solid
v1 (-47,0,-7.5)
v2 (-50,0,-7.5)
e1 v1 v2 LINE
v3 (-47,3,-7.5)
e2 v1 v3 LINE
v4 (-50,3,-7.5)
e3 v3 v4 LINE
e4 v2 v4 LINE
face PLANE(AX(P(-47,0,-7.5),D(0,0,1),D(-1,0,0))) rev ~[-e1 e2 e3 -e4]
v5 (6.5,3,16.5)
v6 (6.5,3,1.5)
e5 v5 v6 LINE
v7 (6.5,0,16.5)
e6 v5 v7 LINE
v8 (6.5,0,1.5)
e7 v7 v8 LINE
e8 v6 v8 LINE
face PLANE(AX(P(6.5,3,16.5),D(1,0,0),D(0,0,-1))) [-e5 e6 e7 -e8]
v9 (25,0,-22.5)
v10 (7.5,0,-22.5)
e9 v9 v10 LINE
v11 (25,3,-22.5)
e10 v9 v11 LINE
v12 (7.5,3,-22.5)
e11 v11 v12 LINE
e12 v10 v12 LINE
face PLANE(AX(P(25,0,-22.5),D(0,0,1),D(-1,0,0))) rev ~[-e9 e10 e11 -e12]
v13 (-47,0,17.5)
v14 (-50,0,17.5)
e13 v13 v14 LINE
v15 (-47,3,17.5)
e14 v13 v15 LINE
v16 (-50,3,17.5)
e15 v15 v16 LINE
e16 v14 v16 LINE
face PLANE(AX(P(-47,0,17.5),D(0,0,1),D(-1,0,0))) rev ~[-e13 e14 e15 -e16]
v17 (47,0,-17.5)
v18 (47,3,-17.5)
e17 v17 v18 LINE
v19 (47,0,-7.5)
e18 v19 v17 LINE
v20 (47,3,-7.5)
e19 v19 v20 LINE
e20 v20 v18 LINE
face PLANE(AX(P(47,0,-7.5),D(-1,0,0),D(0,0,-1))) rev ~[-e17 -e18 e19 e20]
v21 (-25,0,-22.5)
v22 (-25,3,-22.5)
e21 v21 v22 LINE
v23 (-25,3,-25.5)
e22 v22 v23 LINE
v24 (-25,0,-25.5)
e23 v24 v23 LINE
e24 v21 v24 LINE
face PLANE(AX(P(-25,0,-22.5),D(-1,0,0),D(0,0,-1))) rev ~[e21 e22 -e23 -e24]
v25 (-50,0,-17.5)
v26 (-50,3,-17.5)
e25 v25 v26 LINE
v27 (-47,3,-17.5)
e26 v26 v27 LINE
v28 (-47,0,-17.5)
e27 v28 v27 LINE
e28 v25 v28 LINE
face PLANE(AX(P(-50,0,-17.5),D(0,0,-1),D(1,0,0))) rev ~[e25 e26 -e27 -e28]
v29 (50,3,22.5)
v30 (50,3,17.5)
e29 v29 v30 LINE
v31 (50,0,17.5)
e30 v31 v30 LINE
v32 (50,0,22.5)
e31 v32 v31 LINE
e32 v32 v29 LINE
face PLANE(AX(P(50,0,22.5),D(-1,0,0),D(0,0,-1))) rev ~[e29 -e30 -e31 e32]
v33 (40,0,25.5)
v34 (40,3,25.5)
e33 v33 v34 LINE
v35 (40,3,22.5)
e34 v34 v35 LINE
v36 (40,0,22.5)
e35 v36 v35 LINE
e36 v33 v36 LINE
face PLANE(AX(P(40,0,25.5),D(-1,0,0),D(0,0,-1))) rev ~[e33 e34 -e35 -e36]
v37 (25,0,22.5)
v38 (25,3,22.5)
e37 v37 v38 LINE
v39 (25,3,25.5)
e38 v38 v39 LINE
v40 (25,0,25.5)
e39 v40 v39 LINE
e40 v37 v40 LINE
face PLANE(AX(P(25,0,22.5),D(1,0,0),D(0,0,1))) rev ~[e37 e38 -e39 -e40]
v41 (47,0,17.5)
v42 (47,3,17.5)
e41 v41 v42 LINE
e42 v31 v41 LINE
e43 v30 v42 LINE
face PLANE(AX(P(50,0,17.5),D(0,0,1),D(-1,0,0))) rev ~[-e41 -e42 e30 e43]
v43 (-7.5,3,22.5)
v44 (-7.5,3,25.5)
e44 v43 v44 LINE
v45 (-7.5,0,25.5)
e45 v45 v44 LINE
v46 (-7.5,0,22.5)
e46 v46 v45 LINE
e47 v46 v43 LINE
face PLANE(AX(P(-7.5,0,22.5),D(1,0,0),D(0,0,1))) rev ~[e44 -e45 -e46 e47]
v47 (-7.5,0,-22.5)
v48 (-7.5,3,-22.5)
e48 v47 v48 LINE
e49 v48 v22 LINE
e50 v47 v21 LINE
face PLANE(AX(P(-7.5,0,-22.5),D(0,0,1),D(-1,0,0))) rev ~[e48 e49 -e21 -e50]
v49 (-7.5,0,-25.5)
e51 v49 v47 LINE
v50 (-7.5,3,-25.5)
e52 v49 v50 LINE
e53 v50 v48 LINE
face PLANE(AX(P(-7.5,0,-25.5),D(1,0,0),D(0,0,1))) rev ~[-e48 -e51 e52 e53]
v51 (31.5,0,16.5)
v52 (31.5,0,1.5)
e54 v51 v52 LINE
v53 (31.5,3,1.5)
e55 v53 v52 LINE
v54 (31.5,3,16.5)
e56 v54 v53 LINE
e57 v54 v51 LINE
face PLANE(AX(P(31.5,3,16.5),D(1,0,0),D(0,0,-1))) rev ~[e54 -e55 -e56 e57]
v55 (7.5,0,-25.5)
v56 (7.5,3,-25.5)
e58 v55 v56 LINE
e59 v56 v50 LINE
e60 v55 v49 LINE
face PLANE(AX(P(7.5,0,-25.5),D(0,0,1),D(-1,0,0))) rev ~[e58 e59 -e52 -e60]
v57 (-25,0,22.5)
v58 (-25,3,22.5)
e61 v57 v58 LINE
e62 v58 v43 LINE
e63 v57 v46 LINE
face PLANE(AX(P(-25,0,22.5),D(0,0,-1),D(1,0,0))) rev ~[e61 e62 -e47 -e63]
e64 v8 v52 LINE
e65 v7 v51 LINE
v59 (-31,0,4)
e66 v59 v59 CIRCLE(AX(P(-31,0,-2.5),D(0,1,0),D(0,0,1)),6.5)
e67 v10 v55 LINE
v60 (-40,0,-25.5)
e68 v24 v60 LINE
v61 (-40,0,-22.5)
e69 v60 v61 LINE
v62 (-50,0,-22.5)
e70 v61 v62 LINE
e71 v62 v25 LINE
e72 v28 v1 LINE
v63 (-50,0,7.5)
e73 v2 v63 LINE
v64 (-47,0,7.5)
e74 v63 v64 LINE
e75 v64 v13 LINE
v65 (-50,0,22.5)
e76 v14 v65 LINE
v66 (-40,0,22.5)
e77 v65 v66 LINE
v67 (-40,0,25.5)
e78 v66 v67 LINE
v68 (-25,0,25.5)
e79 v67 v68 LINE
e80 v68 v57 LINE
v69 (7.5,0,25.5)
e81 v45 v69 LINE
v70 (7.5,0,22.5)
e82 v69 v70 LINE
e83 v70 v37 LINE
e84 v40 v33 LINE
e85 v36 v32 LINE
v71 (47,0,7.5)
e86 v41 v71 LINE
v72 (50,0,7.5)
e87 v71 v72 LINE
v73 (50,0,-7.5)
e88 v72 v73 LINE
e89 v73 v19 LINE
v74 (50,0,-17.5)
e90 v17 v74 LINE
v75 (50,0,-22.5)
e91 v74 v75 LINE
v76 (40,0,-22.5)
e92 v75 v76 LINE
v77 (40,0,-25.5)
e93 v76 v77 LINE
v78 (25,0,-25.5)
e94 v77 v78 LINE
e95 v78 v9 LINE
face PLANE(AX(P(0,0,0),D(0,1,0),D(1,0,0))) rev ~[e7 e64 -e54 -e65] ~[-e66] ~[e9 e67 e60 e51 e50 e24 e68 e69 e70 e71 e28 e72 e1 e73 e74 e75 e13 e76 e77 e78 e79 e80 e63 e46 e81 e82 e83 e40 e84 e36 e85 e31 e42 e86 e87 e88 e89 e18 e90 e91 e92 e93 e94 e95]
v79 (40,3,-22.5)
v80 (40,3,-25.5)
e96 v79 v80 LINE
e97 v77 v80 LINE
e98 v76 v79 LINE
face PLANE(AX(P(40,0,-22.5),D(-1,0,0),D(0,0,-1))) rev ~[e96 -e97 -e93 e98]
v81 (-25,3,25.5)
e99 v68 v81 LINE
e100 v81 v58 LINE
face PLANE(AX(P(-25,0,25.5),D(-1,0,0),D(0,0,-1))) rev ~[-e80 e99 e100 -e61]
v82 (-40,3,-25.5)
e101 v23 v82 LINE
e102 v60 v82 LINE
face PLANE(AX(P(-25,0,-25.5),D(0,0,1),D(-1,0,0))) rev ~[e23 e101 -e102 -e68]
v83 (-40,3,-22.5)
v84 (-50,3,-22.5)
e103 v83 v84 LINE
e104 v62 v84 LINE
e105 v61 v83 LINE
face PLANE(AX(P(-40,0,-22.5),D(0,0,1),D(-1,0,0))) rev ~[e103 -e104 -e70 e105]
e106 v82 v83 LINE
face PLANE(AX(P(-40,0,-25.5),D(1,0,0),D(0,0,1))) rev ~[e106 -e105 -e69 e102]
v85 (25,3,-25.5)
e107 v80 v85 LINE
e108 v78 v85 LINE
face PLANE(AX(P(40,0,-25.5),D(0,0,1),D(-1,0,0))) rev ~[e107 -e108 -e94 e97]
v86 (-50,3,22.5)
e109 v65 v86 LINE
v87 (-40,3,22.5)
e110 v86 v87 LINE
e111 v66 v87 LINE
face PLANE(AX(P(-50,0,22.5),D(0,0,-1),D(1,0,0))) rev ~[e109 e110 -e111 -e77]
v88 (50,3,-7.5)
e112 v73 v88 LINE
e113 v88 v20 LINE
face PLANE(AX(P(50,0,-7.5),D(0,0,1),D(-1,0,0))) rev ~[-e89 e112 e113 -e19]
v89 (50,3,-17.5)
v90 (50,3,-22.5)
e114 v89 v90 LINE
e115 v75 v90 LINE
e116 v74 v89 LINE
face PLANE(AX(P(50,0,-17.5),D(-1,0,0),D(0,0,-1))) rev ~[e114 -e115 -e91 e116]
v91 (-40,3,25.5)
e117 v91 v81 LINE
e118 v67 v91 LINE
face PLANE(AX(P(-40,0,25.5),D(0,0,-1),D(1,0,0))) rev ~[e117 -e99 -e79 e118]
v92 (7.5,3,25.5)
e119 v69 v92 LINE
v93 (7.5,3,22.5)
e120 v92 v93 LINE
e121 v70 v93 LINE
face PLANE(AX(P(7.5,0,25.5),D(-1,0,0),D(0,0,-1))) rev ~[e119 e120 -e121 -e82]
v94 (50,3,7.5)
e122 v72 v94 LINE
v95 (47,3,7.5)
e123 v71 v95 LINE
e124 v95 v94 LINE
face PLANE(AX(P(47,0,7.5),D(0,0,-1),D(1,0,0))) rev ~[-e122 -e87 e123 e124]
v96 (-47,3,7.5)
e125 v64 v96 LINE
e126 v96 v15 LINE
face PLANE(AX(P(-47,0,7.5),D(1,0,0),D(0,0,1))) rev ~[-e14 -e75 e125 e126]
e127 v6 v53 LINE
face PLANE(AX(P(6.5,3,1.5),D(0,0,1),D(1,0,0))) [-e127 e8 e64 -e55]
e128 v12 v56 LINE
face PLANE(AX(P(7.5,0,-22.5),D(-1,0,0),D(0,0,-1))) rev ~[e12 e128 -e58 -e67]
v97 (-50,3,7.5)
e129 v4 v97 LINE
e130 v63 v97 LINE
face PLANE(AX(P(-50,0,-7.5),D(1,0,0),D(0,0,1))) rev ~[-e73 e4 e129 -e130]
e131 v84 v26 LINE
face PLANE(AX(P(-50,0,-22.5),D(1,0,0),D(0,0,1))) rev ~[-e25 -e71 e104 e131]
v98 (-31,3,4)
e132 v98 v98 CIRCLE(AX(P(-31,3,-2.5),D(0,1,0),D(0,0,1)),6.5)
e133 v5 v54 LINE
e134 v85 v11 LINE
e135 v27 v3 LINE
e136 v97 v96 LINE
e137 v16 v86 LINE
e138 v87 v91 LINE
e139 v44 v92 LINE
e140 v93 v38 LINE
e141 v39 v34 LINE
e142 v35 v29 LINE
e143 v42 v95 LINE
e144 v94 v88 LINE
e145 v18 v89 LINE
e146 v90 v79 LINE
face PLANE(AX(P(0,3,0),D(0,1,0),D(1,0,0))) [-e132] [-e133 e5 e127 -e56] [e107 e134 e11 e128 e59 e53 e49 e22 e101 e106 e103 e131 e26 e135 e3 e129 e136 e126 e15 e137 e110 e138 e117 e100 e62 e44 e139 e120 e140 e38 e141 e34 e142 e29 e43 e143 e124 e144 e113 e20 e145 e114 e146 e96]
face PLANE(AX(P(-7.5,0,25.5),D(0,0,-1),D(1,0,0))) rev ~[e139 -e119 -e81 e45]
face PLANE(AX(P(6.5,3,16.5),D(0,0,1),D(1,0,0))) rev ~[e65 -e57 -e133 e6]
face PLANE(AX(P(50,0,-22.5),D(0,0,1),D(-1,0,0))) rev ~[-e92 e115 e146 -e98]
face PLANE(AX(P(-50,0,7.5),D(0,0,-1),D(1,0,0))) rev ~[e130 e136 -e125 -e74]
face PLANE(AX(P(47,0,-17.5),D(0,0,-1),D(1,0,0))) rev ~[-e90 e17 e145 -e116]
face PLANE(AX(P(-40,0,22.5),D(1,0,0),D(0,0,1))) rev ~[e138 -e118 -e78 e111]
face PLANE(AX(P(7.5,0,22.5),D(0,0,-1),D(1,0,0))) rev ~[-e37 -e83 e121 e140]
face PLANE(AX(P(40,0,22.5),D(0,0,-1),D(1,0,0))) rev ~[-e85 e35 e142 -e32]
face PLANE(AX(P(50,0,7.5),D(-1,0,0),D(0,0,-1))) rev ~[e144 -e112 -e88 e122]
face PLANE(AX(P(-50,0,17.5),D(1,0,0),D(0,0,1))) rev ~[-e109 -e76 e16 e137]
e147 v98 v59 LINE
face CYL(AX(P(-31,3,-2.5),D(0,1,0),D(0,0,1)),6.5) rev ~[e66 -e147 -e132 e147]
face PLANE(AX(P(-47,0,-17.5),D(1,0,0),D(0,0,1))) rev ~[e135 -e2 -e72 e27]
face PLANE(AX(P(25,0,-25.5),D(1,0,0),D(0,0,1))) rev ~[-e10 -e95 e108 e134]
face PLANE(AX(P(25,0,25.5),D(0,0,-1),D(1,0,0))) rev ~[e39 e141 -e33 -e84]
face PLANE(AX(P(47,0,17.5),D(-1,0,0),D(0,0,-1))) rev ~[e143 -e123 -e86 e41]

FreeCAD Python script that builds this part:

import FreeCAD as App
import Part
import Sketcher
Q = App.Units.Quantity

doc = App.newDocument("Part")
body = doc.addObject("PartDesign::Body", "Body")

sketch1 = body.newObject("Sketcher::SketchObject", "Sketch")
sketch1.AttachmentSupport = (doc.getObject("XZ_Plane"), [""])
sketch1.MapMode = "FlatFace"
sketch1.addGeometry(Part.LineSegment(App.Vector(-50, 22.5, 0), App.Vector(-40, 22.5, 0)), False)
sketch1.addGeometry(Part.LineSegment(App.Vector(-40, 22.5, 0), App.Vector(-40, 25.5, 0)), False)
sketch1.addGeometry(Part.LineSegment(App.Vector(-40, 25.5, 0), App.Vector(-25, 25.5, 0)), False)
sketch1.addGeometry(Part.LineSegment(App.Vector(-25, 25.5, 0), App.Vector(-25, 22.5, 0)), False)
sketch1.addGeometry(Part.LineSegment(App.Vector(-25, 22.5, 0), App.Vector(-7.5, 22.5, 0)), False)
sketch1.addGeometry(Part.LineSegment(App.Vector(-7.5, 22.5, 0), App.Vector(-7.5, 25.5, 0)), False)
sketch1.addGeometry(Part.LineSegment(App.Vector(-7.5, 25.5, 0), App.Vector(7.5, 25.5, 0)), False)
sketch1.addGeometry(Part.LineSegment(App.Vector(7.5, 25.5, 0), App.Vector(7.5, 22.5, 0)), False)
sketch1.addGeometry(Part.LineSegment(App.Vector(7.5, 22.5, 0), App.Vector(25, 22.5, 0)), False)
sketch1.addGeometry(Part.LineSegment(App.Vector(25, 22.5, 0), App.Vector(25, 25.5, 0)), False)
sketch1.addGeometry(Part.LineSegment(App.Vector(25, 25.5, 0), App.Vector(40, 25.5, 0)), False)
sketch1.addGeometry(Part.LineSegment(App.Vector(40, 25.5, 0), App.Vector(40, 22.5, 0)), False)
sketch1.addGeometry(Part.LineSegment(App.Vector(40, 22.5, 0), App.Vector(50, 22.5, 0)), False)
sketch1.addGeometry(Part.LineSegment(App.Vector(50, 22.5, 0), App.Vector(50, 17.5, 0)), False)
sketch1.addGeometry(Part.LineSegment(App.Vector(50, 17.5, 0), App.Vector(47, 17.5, 0)), False)
sketch1.addGeometry(Part.LineSegment(App.Vector(47, 17.5, 0), App.Vector(47, 7.5, 0)), False)
sketch1.addGeometry(Part.LineSegment(App.Vector(47, 7.5, 0), App.Vector(50, 7.5, 0)), False)
sketch1.addGeometry(Part.LineSegment(App.Vector(50, 7.5, 0), App.Vector(50, -7.5, 0)), False)
sketch1.addGeometry(Part.LineSegment(App.Vector(50, -7.5, 0), App.Vector(47, -7.5, 0)), False)
sketch1.addGeometry(Part.LineSegment(App.Vector(47, -7.5, 0), App.Vector(47, -17.5, 0)), False)
sketch1.addGeometry(Part.LineSegment(App.Vector(47, -17.5, 0), App.Vector(50, -17.5, 0)), False)
sketch1.addGeometry(Part.LineSegment(App.Vector(50, -17.5, 0), App.Vector(50, -22.5, 0)), False)
sketch1.addGeometry(Part.LineSegment(App.Vector(50, -22.5, 0), App.Vector(40, -22.5, 0)), False)
sketch1.addGeometry(Part.LineSegment(App.Vector(40, -22.5, 0), App.Vector(40, -25.5, 0)), False)
sketch1.addGeometry(Part.LineSegment(App.Vector(40, -25.5, 0), App.Vector(25, -25.5, 0)), False)
sketch1.addGeometry(Part.LineSegment(App.Vector(25, -25.5, 0), App.Vector(25, -22.5, 0)), False)
sketch1.addGeometry(Part.LineSegment(App.Vector(25, -22.5, 0), App.Vector(7.5, -22.5, 0)), False)
sketch1.addGeometry(Part.LineSegment(App.Vector(7.5, -22.5, 0), App.Vector(7.5, -25.5, 0)), False)
sketch1.addGeometry(Part.LineSegment(App.Vector(7.5, -25.5, 0), App.Vector(-7.5, -25.5, 0)), False)
sketch1.addGeometry(Part.LineSegment(App.Vector(-7.5, -25.5, 0), App.Vector(-7.5, -22.5, 0)), False)
sketch1.addGeometry(Part.LineSegment(App.Vector(-7.5, -22.5, 0), App.Vector(-25, -22.5, 0)), False)
sketch1.addGeometry(Part.LineSegment(App.Vector(-25, -22.5, 0), App.Vector(-25, -25.5, 0)), False)
sketch1.addGeometry(Part.LineSegment(App.Vector(-25, -25.5, 0), App.Vector(-40, -25.5, 0)), False)
sketch1.addGeometry(Part.LineSegment(App.Vector(-40, -25.5, 0), App.Vector(-40, -22.5, 0)), False)
sketch1.addGeometry(Part.LineSegment(App.Vector(-40, -22.5, 0), App.Vector(-50, -22.5, 0)), False)
sketch1.addGeometry(Part.LineSegment(App.Vector(-50, -22.5, 0), App.Vector(-50, -17.5, 0)), False)
sketch1.addGeometry(Part.LineSegment(App.Vector(-50, -17.5, 0), App.Vector(-47, -17.5, 0)), False)
sketch1.addGeometry(Part.LineSegment(App.Vector(-47, -17.5, 0), App.Vector(-47, -7.5, 0)), False)
sketch1.addGeometry(Part.LineSegment(App.Vector(-47, -7.5, 0), App.Vector(-50, -7.5, 0)), False)
sketch1.addGeometry(Part.LineSegment(App.Vector(-50, -7.5, 0), App.Vector(-50, 7.5, 0)), False)
sketch1.addGeometry(Part.LineSegment(App.Vector(-50, 7.5, 0), App.Vector(-47, 7.5, 0)), False)
sketch1.addGeometry(Part.LineSegment(App.Vector(-47, 7.5, 0), App.Vector(-47, 17.5, 0)), False)
sketch1.addGeometry(Part.LineSegment(App.Vector(-47, 17.5, 0), App.Vector(-50, 17.5, 0)), False)
sketch1.addGeometry(Part.LineSegment(App.Vector(-50, 17.5, 0), App.Vector(-50, 22.5, 0)), False)
sketch1.addConstraint(Sketcher.Constraint("Coincident", 0, 2, 1, 1))
sketch1.addConstraint(Sketcher.Constraint("Coincident", 1, 2, 2, 1))
sketch1.addConstraint(Sketcher.Constraint("Coincident", 2, 2, 3, 1))
sketch1.addConstraint(Sketcher.Constraint("Coincident", 3, 2, 4, 1))
sketch1.addConstraint(Sketcher.Constraint("Coincident", 4, 2, 5, 1))
sketch1.addConstraint(Sketcher.Constraint("Coincident", 5, 2, 6, 1))
sketch1.addConstraint(Sketcher.Constraint("Coincident", 6, 2, 7, 1))
sketch1.addConstraint(Sketcher.Constraint("Coincident", 7, 2, 8, 1))
sketch1.addConstraint(Sketcher.Constraint("Coincident", 8, 2, 9, 1))
sketch1.addConstraint(Sketcher.Constraint("Coincident", 9, 2, 10, 1))
sketch1.addConstraint(Sketcher.Constraint("Coincident", 10, 2, 11, 1))
sketch1.addConstraint(Sketcher.Constraint("Coincident", 11, 2, 12, 1))
sketch1.addConstraint(Sketcher.Constraint("Coincident", 12, 2, 13, 1))
sketch1.addConstraint(Sketcher.Constraint("Coincident", 13, 2, 14, 1))
sketch1.addConstraint(Sketcher.Constraint("Coincident", 14, 2, 15, 1))
sketch1.addConstraint(Sketcher.Constraint("Coincident", 15, 2, 16, 1))
sketch1.addConstraint(Sketcher.Constraint("Coincident", 16, 2, 17, 1))
sketch1.addConstraint(Sketcher.Constraint("Coincident", 17, 2, 18, 1))
sketch1.addConstraint(Sketcher.Constraint("Coincident", 18, 2, 19, 1))
sketch1.addConstraint(Sketcher.Constraint("Coincident", 19, 2, 20, 1))
sketch1.addConstraint(Sketcher.Constraint("Coincident", 20, 2, 21, 1))
sketch1.addConstraint(Sketcher.Constraint("Coincident", 21, 2, 22, 1))
sketch1.addConstraint(Sketcher.Constraint("Coincident", 22, 2, 23, 1))
sketch1.addConstraint(Sketcher.Constraint("Coincident", 23, 2, 24, 1))
sketch1.addConstraint(Sketcher.Constraint("Coincident", 24, 2, 25, 1))
sketch1.addConstraint(Sketcher.Constraint("Coincident", 25, 2, 26, 1))
sketch1.addConstraint(Sketcher.Constraint("Coincident", 26, 2, 27, 1))
sketch1.addConstraint(Sketcher.Constraint("Coincident", 27, 2, 28, 1))
sketch1.addConstraint(Sketcher.Constraint("Coincident", 28, 2, 29, 1))
sketch1.addConstraint(Sketcher.Constraint("Coincident", 29, 2, 30, 1))
sketch1.addConstraint(Sketcher.Constraint("Coincident", 30, 2, 31, 1))
sketch1.addConstraint(Sketcher.Constraint("Coincident", 31, 2, 32, 1))
sketch1.addConstraint(Sketcher.Constraint("Coincident", 32, 2, 33, 1))
sketch1.addConstraint(Sketcher.Constraint("Coincident", 33, 2, 34, 1))
sketch1.addConstraint(Sketcher.Constraint("Coincident", 34, 2, 35, 1))
sketch1.addConstraint(Sketcher.Constraint("Coincident", 35, 2, 36, 1))
sketch1.addConstraint(Sketcher.Constraint("Coincident", 36, 2, 37, 1))
sketch1.addConstraint(Sketcher.Constraint("Coincident", 37, 2, 38, 1))
sketch1.addConstraint(Sketcher.Constraint("Coincident", 38, 2, 39, 1))
sketch1.addConstraint(Sketcher.Constraint("Coincident", 39, 2, 40, 1))
sketch1.addConstraint(Sketcher.Constraint("Coincident", 40, 2, 41, 1))
sketch1.addConstraint(Sketcher.Constraint("Coincident", 41, 2, 42, 1))
sketch1.addConstraint(Sketcher.Constraint("Coincident", 42, 2, 43, 1))
sketch1.addConstraint(Sketcher.Constraint("Coincident", 43, 2, 0, 1))
sketch1.addConstraint(Sketcher.Constraint("Horizontal", 0))
sketch1.addConstraint(Sketcher.Constraint("Vertical", 1))
sketch1.addConstraint(Sketcher.Constraint("Horizontal", 2))
sketch1.addConstraint(Sketcher.Constraint("Vertical", 3))
sketch1.addConstraint(Sketcher.Constraint("Horizontal", 4))
sketch1.addConstraint(Sketcher.Constraint("Vertical", 5))
sketch1.addConstraint(Sketcher.Constraint("Horizontal", 6))
sketch1.addConstraint(Sketcher.Constraint("Vertical", 7))
sketch1.addConstraint(Sketcher.Constraint("Horizontal", 8))
sketch1.addConstraint(Sketcher.Constraint("Vertical", 9))
sketch1.addConstraint(Sketcher.Constraint("Horizontal", 10))
sketch1.addConstraint(Sketcher.Constraint("Vertical", 11))
sketch1.addConstraint(Sketcher.Constraint("Horizontal", 12))
sketch1.addConstraint(Sketcher.Constraint("Vertical", 13))
sketch1.addConstraint(Sketcher.Constraint("Horizontal", 14))
sketch1.addConstraint(Sketcher.Constraint("Vertical", 15))
sketch1.addConstraint(Sketcher.Constraint("Horizontal", 16))
sketch1.addConstraint(Sketcher.Constraint("Vertical", 17))
sketch1.addConstraint(Sketcher.Constraint("Horizontal", 18))
sketch1.addConstraint(Sketcher.Constraint("Vertical", 19))
sketch1.addConstraint(Sketcher.Constraint("Horizontal", 20))
sketch1.addConstraint(Sketcher.Constraint("Vertical", 21))
sketch1.addConstraint(Sketcher.Constraint("Horizontal", 22))
sketch1.addConstraint(Sketcher.Constraint("Vertical", 23))
sketch1.addConstraint(Sketcher.Constraint("Horizontal", 24))
sketch1.addConstraint(Sketcher.Constraint("Vertical", 25))
sketch1.addConstraint(Sketcher.Constraint("Horizontal", 26))
sketch1.addConstraint(Sketcher.Constraint("Vertical", 27))
sketch1.addConstraint(Sketcher.Constraint("Horizontal", 28))
sketch1.addConstraint(Sketcher.Constraint("Vertical", 29))
sketch1.addConstraint(Sketcher.Constraint("Horizontal", 30))
sketch1.addConstraint(Sketcher.Constraint("Vertical", 31))
sketch1.addConstraint(Sketcher.Constraint("Horizontal", 32))
sketch1.addConstraint(Sketcher.Constraint("Vertical", 33))
sketch1.addConstraint(Sketcher.Constraint("Horizontal", 34))
sketch1.addConstraint(Sketcher.Constraint("Vertical", 35))
sketch1.addConstraint(Sketcher.Constraint("Horizontal", 36))
sketch1.addConstraint(Sketcher.Constraint("Vertical", 37))
sketch1.addConstraint(Sketcher.Constraint("Horizontal", 38))
sketch1.addConstraint(Sketcher.Constraint("Vertical", 39))
sketch1.addConstraint(Sketcher.Constraint("Horizontal", 40))
sketch1.addConstraint(Sketcher.Constraint("Vertical", 41))
sketch1.addConstraint(Sketcher.Constraint("Horizontal", 42))
sketch1.addConstraint(Sketcher.Constraint("Vertical", 43))
sketch1.addConstraint(Sketcher.Constraint("Symmetric", 0, 2, 22, 2, -1, 1))
sketch1.addConstraint(Sketcher.Constraint("Symmetric", 2, 2, 24, 2, -1, 1))
sketch1.addConstraint(Sketcher.Constraint("Symmetric", 4, 2, 26, 2, -1, 1))
sketch1.addConstraint(Sketcher.Constraint("Symmetric", 6, 2, 28, 2, -1, 1))
sketch1.addConstraint(Sketcher.Constraint("Symmetric", 8, 2, 30, 2, -1, 1))
sketch1.addConstraint(Sketcher.Constraint("Symmetric", 10, 2, 32, 2, -1, 1))
sketch1.addConstraint(Sketcher.Constraint("Symmetric", 12, 2, 34, 2, -1, 1))
sketch1.addConstraint(Sketcher.Constraint("Symmetric", 14, 2, 36, 2, -1, 1))
sketch1.addConstraint(Sketcher.Constraint("Symmetric", 16, 2, 38, 2, -1, 1))
sketch1.addConstraint(Sketcher.Constraint("Symmetric", 18, 2, 40, 2, -1, 1))
sketch1.addConstraint(Sketcher.Constraint("Symmetric", 20, 2, 42, 2, -1, 1))
sketch1.addConstraint(Sketcher.Constraint("Symmetric", 4, 2, 7, 2, -2))
sketch1.addConstraint(Sketcher.Constraint("Symmetric", 2, 2, 9, 2, -2))
sketch1.addConstraint(Sketcher.Constraint("Symmetric", 0, 2, 11, 2, -2))
sketch1.addConstraint(Sketcher.Constraint("Symmetric", 20, 2, 35, 2, -2))
sketch1.addConstraint(Sketcher.Constraint("Symmetric", 18, 2, 37, 2, -2))
sketch1.addConstraint(Sketcher.Constraint("Horizontal", 0, 2, 3, 2))
sketch1.addConstraint(Sketcher.Constraint("Horizontal", 2, 2, 5, 2))
sketch1.addConstraint(Sketcher.Constraint("Vertical", 13, 2, 16, 2))
sketch1.addConstraint(Sketcher.Constraint("Equal", 2, 6))
sketch1.addConstraint(Sketcher.Constraint("Equal", 42, 1))
sketch1.addConstraint(Sketcher.Constraint("Equal", 34, 15))
sketch1.addConstraint(Sketcher.Constraint("Equal", 32, 17))
sketch1.addConstraint(Sketcher.Constraint("DistanceX", 0, 1, 0, 2, Q("10 mm")))
sketch1.addConstraint(Sketcher.Constraint("DistanceX", 2, 1, 2, 2, Q("15 mm")))
sketch1.addConstraint(Sketcher.Constraint("DistanceX", 14, 2, 14, 1, Q("3 mm")))
sketch1.addConstraint(Sketcher.Constraint("DistanceY", 13, 2, 13, 1, Q("5 mm")))
sketch1.addConstraint(Sketcher.Constraint("DistanceX", 4, 1, 4, 2, Q("17.5 mm")))
pad1 = body.newObject("PartDesign::Pad", "Pad")
pad1.Profile = sketch1
pad1.Length = 3
pad1.Reversed = True

sketch2 = body.newObject("Sketcher::SketchObject", "Sketch001")
sketch2.AttachmentSupport = (doc.getObject("XZ_Plane"), [""])
sketch2.MapMode = "FlatFace"
sketch2.AttachmentOffset = App.Placement(App.Vector(0, 0, -3), App.Rotation())
sketch2.addGeometry(Part.Circle(App.Vector(-31, -2, 0), App.Vector(0, 0, 1), 6), False)
sketch2.addGeometry(Part.LineSegment(App.Vector(6, 2, 0), App.Vector(6, 16, 0)), False)
sketch2.addGeometry(Part.LineSegment(App.Vector(6, 16, 0), App.Vector(32, 16, 0)), False)
sketch2.addGeometry(Part.LineSegment(App.Vector(32, 16, 0), App.Vector(32, 2, 0)), False)
sketch2.addGeometry(Part.LineSegment(App.Vector(32, 2, 0), App.Vector(6, 2, 0)), False)
sketch2.addConstraint(Sketcher.Constraint("Coincident", 1, 2, 2, 1))
sketch2.addConstraint(Sketcher.Constraint("Coincident", 2, 2, 3, 1))
sketch2.addConstraint(Sketcher.Constraint("Coincident", 3, 2, 4, 1))
sketch2.addConstraint(Sketcher.Constraint("Coincident", 4, 2, 1, 1))
sketch2.addConstraint(Sketcher.Constraint("Vertical", 1))
sketch2.addConstraint(Sketcher.Constraint("Horizontal", 2))
sketch2.addConstraint(Sketcher.Constraint("Vertical", 3))
sketch2.addConstraint(Sketcher.Constraint("Horizontal", 4))
sketch2.addConstraint(Sketcher.Constraint("Diameter", 0, Q("13 mm")))
sketch2.addConstraint(Sketcher.Constraint("DistanceX", 2, 1, 2, 2, Q("25 mm")))
sketch2.addConstraint(Sketcher.Constraint("DistanceY", 1, 1, 1, 2, Q("15 mm")))
sketch2.addConstraint(Sketcher.Constraint("DistanceX", 0, 3, -1, 1, Q("31 mm")))
sketch2.addConstraint(Sketcher.Constraint("DistanceY", 0, 3, 1, 2, Q("19 mm")))
sketch2.addConstraint(Sketcher.Constraint("DistanceY", 0, 3, -1, 1, Q("2.5 mm")))
sketch2.addConstraint(Sketcher.Constraint("DistanceX", -1, 1, 1, 2, Q("6.5 mm")))
pocket1 = body.newObject("PartDesign::Pocket", "Pocket")
pocket1.Profile = sketch2
pocket1.Type = "ThroughAll"
pocket1.Reversed = True

doc.recompute()
